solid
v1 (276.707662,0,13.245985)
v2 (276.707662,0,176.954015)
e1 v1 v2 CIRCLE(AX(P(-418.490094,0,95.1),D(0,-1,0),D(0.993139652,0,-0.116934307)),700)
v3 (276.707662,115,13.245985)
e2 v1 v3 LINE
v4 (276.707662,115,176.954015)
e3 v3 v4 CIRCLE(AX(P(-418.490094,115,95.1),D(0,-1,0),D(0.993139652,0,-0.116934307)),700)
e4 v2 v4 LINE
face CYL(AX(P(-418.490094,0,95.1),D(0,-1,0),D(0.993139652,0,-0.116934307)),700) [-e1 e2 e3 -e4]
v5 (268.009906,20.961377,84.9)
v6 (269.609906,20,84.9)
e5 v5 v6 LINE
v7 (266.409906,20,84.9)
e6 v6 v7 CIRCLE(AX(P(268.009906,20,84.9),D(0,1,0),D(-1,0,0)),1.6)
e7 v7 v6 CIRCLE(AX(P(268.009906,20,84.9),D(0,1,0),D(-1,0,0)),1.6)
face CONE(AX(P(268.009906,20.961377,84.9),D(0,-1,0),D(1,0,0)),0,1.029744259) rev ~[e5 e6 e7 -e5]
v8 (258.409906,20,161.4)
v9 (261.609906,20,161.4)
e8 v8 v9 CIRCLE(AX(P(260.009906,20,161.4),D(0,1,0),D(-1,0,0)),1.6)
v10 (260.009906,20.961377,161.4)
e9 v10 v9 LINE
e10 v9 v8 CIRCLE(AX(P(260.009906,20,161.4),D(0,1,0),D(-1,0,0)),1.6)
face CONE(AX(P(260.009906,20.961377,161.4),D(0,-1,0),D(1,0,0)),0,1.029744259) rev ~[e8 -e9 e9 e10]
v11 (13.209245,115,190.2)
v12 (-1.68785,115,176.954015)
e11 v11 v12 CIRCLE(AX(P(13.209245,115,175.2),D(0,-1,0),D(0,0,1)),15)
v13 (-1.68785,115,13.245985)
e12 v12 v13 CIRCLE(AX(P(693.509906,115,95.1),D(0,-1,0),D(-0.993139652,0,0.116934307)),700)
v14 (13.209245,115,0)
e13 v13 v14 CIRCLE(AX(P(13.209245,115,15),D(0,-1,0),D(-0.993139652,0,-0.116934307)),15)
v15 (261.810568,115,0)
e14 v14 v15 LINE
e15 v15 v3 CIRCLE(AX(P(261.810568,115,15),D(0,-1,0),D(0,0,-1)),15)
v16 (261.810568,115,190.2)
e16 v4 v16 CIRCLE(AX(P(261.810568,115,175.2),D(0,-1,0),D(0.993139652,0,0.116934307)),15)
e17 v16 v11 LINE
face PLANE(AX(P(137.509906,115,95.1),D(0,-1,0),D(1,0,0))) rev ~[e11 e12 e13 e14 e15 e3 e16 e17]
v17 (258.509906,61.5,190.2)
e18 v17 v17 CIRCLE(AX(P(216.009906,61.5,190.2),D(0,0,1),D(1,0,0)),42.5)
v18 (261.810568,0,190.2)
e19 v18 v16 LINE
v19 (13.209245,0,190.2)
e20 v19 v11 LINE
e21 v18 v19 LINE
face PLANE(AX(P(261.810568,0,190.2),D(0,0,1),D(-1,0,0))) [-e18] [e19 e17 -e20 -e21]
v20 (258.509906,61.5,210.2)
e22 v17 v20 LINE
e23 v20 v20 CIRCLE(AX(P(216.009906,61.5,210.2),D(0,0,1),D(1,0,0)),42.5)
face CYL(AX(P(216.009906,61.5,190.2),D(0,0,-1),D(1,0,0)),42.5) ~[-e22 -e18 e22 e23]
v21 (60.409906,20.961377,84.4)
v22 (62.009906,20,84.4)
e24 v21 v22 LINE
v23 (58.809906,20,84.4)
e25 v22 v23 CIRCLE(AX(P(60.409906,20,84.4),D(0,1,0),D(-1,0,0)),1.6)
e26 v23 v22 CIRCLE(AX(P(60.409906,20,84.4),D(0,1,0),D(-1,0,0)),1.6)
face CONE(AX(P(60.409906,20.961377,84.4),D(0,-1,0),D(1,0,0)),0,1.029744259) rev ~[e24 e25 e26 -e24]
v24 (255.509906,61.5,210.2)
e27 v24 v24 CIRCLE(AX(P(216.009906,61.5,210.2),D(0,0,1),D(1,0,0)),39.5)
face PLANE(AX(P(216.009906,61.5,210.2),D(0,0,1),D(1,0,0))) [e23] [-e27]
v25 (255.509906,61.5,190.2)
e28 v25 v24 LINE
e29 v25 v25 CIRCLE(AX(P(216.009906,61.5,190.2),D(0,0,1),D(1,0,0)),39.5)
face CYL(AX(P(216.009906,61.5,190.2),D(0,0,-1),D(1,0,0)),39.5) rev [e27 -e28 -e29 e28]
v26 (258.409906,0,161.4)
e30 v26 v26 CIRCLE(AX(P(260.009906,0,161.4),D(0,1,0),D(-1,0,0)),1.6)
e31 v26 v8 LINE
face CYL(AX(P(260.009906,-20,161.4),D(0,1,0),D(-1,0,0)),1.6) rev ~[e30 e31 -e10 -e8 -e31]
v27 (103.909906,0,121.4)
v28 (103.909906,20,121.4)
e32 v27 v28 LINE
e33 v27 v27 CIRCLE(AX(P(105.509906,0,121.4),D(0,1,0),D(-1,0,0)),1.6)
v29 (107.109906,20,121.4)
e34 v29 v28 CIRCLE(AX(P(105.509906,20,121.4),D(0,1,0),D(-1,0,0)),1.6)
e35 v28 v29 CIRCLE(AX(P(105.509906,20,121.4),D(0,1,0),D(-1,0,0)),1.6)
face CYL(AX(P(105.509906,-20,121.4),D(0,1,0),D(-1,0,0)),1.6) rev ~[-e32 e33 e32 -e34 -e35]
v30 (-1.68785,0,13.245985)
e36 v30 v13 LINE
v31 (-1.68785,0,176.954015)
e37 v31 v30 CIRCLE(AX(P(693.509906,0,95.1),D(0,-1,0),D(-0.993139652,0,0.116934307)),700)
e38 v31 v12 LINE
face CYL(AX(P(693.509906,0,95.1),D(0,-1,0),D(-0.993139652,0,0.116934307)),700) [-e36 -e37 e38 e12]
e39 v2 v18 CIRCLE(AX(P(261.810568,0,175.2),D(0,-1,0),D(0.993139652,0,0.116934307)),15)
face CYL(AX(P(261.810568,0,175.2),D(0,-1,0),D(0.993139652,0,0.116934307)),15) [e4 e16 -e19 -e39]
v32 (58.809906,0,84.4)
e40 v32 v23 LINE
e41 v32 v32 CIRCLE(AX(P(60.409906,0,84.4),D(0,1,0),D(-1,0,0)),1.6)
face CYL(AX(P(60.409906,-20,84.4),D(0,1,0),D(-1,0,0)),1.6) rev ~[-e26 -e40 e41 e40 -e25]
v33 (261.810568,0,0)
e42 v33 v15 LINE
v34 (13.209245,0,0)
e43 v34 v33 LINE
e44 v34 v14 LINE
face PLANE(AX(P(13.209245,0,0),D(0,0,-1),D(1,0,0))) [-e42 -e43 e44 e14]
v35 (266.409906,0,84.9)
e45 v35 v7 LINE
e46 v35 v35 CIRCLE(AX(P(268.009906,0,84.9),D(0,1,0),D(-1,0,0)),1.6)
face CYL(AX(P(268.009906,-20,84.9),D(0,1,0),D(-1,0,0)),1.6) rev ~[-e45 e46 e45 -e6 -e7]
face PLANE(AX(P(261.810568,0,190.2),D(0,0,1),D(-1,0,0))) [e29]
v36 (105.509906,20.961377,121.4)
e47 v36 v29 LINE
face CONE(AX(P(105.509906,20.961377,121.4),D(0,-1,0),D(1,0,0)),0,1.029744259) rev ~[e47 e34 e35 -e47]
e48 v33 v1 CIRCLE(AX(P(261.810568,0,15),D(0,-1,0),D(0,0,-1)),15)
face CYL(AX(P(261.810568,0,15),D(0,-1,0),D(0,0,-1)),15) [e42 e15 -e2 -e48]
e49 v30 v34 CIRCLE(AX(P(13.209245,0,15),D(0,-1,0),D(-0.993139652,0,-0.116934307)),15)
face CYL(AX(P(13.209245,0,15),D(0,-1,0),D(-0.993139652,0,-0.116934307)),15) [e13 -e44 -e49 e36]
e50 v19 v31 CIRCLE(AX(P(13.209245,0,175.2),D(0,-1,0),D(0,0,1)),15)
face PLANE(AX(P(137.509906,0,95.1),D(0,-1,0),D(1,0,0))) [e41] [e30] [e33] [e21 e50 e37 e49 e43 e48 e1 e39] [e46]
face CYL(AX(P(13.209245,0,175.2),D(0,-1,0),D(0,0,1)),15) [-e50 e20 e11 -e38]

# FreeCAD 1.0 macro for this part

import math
import FreeCAD as App
import Part
import Sketcher
from FreeCAD import Vector

doc = App.newDocument("Part")
body = doc.addObject("PartDesign::Body", "Body")

# Sketch on XZ plane
sketch1 = body.newObject("Sketcher::SketchObject", "Sketch")
sketch1.AttachmentSupport = (doc.getObject("XZ_Plane"), [""])
sketch1.MapMode = "FlatFace"
sketch1.addGeometry(Part.ArcOfCircle(Part.Circle(Vector(13.209245, 15, 0), Vector(0, 0, 1), 15), math.radians(-173.284795), math.radians(-90)), False)
sketch1.addGeometry(Part.LineSegment(Vector(13.209245, 0, 0), Vector(261.810568, 0, 0)), False)
sketch1.addGeometry(Part.ArcOfCircle(Part.Circle(Vector(261.810568, 15, 0), Vector(0, 0, 1), 15), math.radians(-90), math.radians(-6.715205)), False)
sketch1.addGeometry(Part.ArcOfCircle(Part.Circle(Vector(-418.490094, 95.1, 0), Vector(0, 0, 1), 700), math.radians(-6.715205), math.radians(6.715205)), False)
sketch1.addGeometry(Part.ArcOfCircle(Part.Circle(Vector(261.810568, 175.2, 0), Vector(0, 0, 1), 15), math.radians(6.715205), math.radians(90)), False)
sketch1.addGeometry(Part.LineSegment(Vector(261.810568, 190.2, 0), Vector(13.209245, 190.2, 0)), False)
sketch1.addGeometry(Part.ArcOfCircle(Part.Circle(Vector(13.209245, 175.2, 0), Vector(0, 0, 1), 15), math.radians(90), math.radians(173.284795)), False)
sketch1.addGeometry(Part.ArcOfCircle(Part.Circle(Vector(693.509906, 95.1, 0), Vector(0, 0, 1), 700), math.radians(173.284795), math.radians(186.715205)), False)
sketch1.addConstraint(Sketcher.Constraint("Tangent", 0, 2, 1, 1))
sketch1.addConstraint(Sketcher.Constraint("Tangent", 1, 2, 2, 1))
sketch1.addConstraint(Sketcher.Constraint("Tangent", 2, 2, 3, 1))
sketch1.addConstraint(Sketcher.Constraint("Tangent", 3, 2, 4, 1))
sketch1.addConstraint(Sketcher.Constraint("Tangent", 4, 2, 5, 1))
sketch1.addConstraint(Sketcher.Constraint("Tangent", 5, 2, 6, 1))
sketch1.addConstraint(Sketcher.Constraint("Tangent", 6, 2, 7, 1))
sketch1.addConstraint(Sketcher.Constraint("Tangent", 7, 2, 0, 1))
sketch1.addConstraint(Sketcher.Constraint("Horizontal", 1))
sketch1.addConstraint(Sketcher.Constraint("Horizontal", 5))
sketch1.addConstraint(Sketcher.Constraint("Equal", 0, 2))
sketch1.addConstraint(Sketcher.Constraint("Equal", 2, 4))
sketch1.addConstraint(Sketcher.Constraint("Equal", 4, 6))
sketch1.addConstraint(Sketcher.Constraint("Equal", 3, 7))
sketch1.addConstraint(Sketcher.Constraint("PointOnObject", 0, 2, -1))
sketch1.addConstraint(Sketcher.Constraint("Horizontal", 3, 3, 7, 3))
sketch1.addConstraint(Sketcher.Constraint("Vertical", 2, 3, 4, 3))
sketch1.addConstraint(Sketcher.Constraint("Radius", 0, 15.0))
sketch1.addConstraint(Sketcher.Constraint("Radius", 3, 700.0))
sketch1.addConstraint(Sketcher.Constraint("DistanceX", 3, 3, 7, 3, 1112.0))
sketch1.addConstraint(Sketcher.Constraint("DistanceY", -1, 1, 3, 3, 95.1))
sketch1.addConstraint(Sketcher.Constraint("DistanceX", 6, 2, -1, 1, 1.68785))
pad1 = body.newObject("PartDesign::Pad", "Pad")
pad1.Profile = sketch1
pad1.Length = 115
pad1.Reversed = True

# Sketch on XZ plane
sketch2 = body.newObject("Sketcher::SketchObject", "Sketch001")
sketch2.AttachmentSupport = (doc.getObject("XZ_Plane"), [""])
sketch2.MapMode = "FlatFace"
sketch2.addGeometry(Part.Circle(Vector(60.409906, 84.4, 0), Vector(0, 0, 1), 1.6), False)
sketch2.addGeometry(Part.Circle(Vector(105.509906, 121.4, 0), Vector(0, 0, 1), 1.6), False)
sketch2.addGeometry(Part.Circle(Vector(268.009906, 84.9, 0), Vector(0, 0, 1), 1.6), False)
sketch2.addGeometry(Part.Circle(Vector(260.009906, 161.4, 0), Vector(0, 0, 1), 1.6), False)
sketch2.addConstraint(Sketcher.Constraint("Equal", 0, 1))
sketch2.addConstraint(Sketcher.Constraint("Equal", 1, 2))
sketch2.addConstraint(Sketcher.Constraint("Equal", 2, 3))
sketch2.addConstraint(Sketcher.Constraint("Diameter", 0, 3.2))
sketch2.addConstraint(Sketcher.Constraint("DistanceY", 0, 3, 1, 3, 37.0))
sketch2.addConstraint(Sketcher.Constraint("DistanceX", 3, 3, 2, 3, 8.0))
sketch2.addConstraint(Sketcher.Constraint("DistanceY", 1, 3, 3, 3, 40.0))
sketch2.addConstraint(Sketcher.Constraint("DistanceY", -1, 1, 0, 3, 84.4))
sketch2.addConstraint(Sketcher.Constraint("DistanceY", -1, 1, 2, 3, 84.9))
sketch2.addConstraint(Sketcher.Constraint("DistanceX", 0, 3, 1, 3, 45.1))
sketch2.addConstraint(Sketcher.Constraint("DistanceX", 1, 3, 2, 3, 162.5))
sketch2.addConstraint(Sketcher.Constraint("DistanceX", -1, 1, 0, 3, 60.409906))
doc.recompute()
hole = body.newObject("PartDesign::Hole", "Hole")
hole.Profile = sketch2
hole.ThreadType = "None"
hole.Diameter = 3.2
hole.DepthType = "Dimension"
hole.Depth = 20
hole.DrillPoint = "Angled"
hole.DrillPointAngle = 118

# Sketch on XY plane
sketch3 = body.newObject("Sketcher::SketchObject", "Sketch002")
sketch3.AttachmentSupport = (doc.getObject("XY_Plane"), [""])
sketch3.MapMode = "FlatFace"
sketch3.AttachmentOffset = App.Placement(Vector(0, 0, 190.2), App.Rotation())
sketch3.addGeometry(Part.Circle(Vector(216.009906, 61.5, 0), Vector(0, 0, 1), 42.5), False)
sketch3.addGeometry(Part.Circle(Vector(216.009906, 61.5, 0), Vector(0, 0, 1), 39.5), False)
sketch3.addConstraint(Sketcher.Constraint("Coincident", 1, 3, 0, 3))
sketch3.addConstraint(Sketcher.Constraint("Diameter", 0, 85.0))
sketch3.addConstraint(Sketcher.Constraint("Diameter", 1, 79.0))
sketch3.addConstraint(Sketcher.Constraint("DistanceY", -1, 1, 0, 3, 61.5))
sketch3.addConstraint(Sketcher.Constraint("DistanceX", -1, 1, 0, 3, 216.009906))
pad2 = body.newObject("PartDesign::Pad", "Pad001")
pad2.Profile = sketch3
pad2.Length = 20

doc.recompute()
